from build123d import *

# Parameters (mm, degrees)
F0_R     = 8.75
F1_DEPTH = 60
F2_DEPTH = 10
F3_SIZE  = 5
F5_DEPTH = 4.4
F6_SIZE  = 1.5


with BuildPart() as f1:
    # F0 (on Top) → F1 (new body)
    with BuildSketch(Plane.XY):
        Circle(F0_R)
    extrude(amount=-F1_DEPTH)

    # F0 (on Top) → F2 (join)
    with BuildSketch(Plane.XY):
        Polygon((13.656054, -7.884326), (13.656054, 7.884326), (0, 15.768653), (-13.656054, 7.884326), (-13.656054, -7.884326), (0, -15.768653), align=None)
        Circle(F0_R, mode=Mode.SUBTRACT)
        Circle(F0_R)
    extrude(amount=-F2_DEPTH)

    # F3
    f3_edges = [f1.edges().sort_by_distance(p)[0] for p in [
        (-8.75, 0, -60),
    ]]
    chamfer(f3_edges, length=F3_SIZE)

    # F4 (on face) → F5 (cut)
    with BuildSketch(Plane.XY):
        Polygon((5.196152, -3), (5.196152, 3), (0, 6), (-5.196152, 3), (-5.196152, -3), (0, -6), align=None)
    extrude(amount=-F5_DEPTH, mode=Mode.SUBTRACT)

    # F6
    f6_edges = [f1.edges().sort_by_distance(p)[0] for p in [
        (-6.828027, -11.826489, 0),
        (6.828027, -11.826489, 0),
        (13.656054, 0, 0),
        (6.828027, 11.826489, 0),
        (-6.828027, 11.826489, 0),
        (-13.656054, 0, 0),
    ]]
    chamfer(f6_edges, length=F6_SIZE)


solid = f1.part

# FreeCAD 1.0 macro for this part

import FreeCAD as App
import Part
import Sketcher
Q = App.Units.Quantity


def edges_at(feature, points):
    """Names of the edges that pass closest to the given points."""
    edges = feature.Shape.Edges
    near = lambda p: min(range(len(edges)), key=lambda i: edges[i].distToShape(Part.Vertex(*p))[0])
    return sorted({f"Edge{near(p) + 1}" for p in points})


def add_polygon(sketch, points):
    """Adds a closed chain of lines whose ends are joined by coincident constraints."""
    first, n = sketch.GeometryCount, len(points)
    for a, b in zip(points, points[1:] + points[:1]):
        sketch.addGeometry(Part.LineSegment(App.Vector(*a, 0), App.Vector(*b, 0)), False)
    for i in range(n):
        sketch.addConstraint(Sketcher.Constraint("Coincident", first + i, 2, first + (i + 1) % n, 1))

doc = App.newDocument("Part")
params = doc.addObject("Spreadsheet::Sheet", "Params")
for row, (alias, value) in enumerate([
    ("sketch1_diameter", "17.5 mm"),
    ("pad1_length", "60 mm"),
    ("pad2_length", "10 mm"),
    ("chamfer_size", "5 mm"),
    ("sketch3_height", "6 mm"),
    ("sketch3_length", "6 mm"),
    ("pocket1_length", "4.4 mm"),
    ("chamfer2_size", "1.5 mm"),
], start=1):
    params.set(f"A{row}", alias)
    params.set(f"B{row}", "=" + value)
    params.setAlias(f"B{row}", alias)

body = doc.addObject("PartDesign::Body", "Body")

# Sketch on XY plane
sketch1 = body.newObject("Sketcher::SketchObject", "Sketch")
sketch1.AttachmentSupport = (doc.getObject("XY_Plane"), [""])
sketch1.MapMode = "FlatFace"
sketch1.addGeometry(Part.Circle(App.Vector(0, 0, 0), App.Vector(0, 0, 1), 8.75), False)
sketch1.addConstraint([
    Sketcher.Constraint("Coincident", 0, 3, -1, 1),
    Sketcher.Constraint("Diameter", 0, 17.5),
])
sketch1.setExpression("Constraints[1]", "Params.sketch1_diameter")
pad1 = body.newObject("PartDesign::Pad", "Pad")
pad1.Profile = sketch1
pad1.setExpression("Length", "Params.pad1_length")
pad1.Reversed = True

# Sketch on XY plane
sketch2 = body.newObject("Sketcher::SketchObject", "Sketch001")
sketch2.AttachmentSupport = (doc.getObject("XY_Plane"), [""])
sketch2.MapMode = "FlatFace"
add_polygon(sketch2, [(13.656054, -7.884326), (13.656054, 7.884326), (0, 15.768653), (-13.656054, 7.884326), (-13.656054, -7.884326), (0, -15.768653)])  # lines 0-5
sketch2.addConstraint([
    Sketcher.Constraint("Vertical", 0),
    Sketcher.Constraint("Vertical", 3),
    Sketcher.Constraint("Symmetric", 0, 2, 3, 2, -1, 1),
    Sketcher.Constraint("Symmetric", 1, 2, 4, 2, -1, 1),
    Sketcher.Constraint("PointOnObject", 1, 2, -2),
    Sketcher.Constraint("Parallel", 2, 5),
    Sketcher.Constraint("Horizontal", 0, 2, 2, 2),
    Sketcher.Constraint("Angle", 1, Q("149.999998 deg")),
    Sketcher.Constraint("DistanceY", 0, 1, 0, 2, 15.768652),
    Sketcher.Constraint("DistanceY", 3, 2, 1, 2, 23.652979),
])
pad2 = body.newObject("PartDesign::Pad", "Pad001")
pad2.Profile = sketch2
pad2.setExpression("Length", "Params.pad2_length")
pad2.Reversed = True
doc.recompute()

chamfer = body.newObject("PartDesign::Chamfer", "Chamfer")
chamfer.Base = (pad2, edges_at(pad2, [(-8.75, 0, -60)]))
chamfer.setExpression("Size", "Params.chamfer_size")

# Sketch on XY plane
sketch3 = body.newObject("Sketcher::SketchObject", "Sketch002")
sketch3.AttachmentSupport = (doc.getObject("XY_Plane"), [""])
sketch3.MapMode = "FlatFace"
add_polygon(sketch3, [(5.196152, -3), (5.196152, 3), (0, 6), (-5.196152, 3), (-5.196152, -3), (0, -6)])  # lines 0-5
sketch3.addConstraint([
    Sketcher.Constraint("Vertical", 0),
    Sketcher.Constraint("Vertical", 3),
    Sketcher.Constraint("Symmetric", 0, 2, 3, 2, -1, 1),
    Sketcher.Constraint("Symmetric", 1, 2, 4, 2, -1, 1),
    Sketcher.Constraint("PointOnObject", 1, 2, -2),
    Sketcher.Constraint("Parallel", 2, 5),
    Sketcher.Constraint("Horizontal", 0, 2, 2, 2),
    Sketcher.Constraint("DistanceY", 0, 1, 0, 2, 6.0),
    Sketcher.Constraint("Angle", 1, Q("149.999998 deg")),
    Sketcher.Constraint("Distance", 1, 6.0),
])
sketch3.setExpression("Constraints[13]", "Params.sketch3_height")
sketch3.setExpression("Constraints[15]", "Params.sketch3_length")
pocket1 = body.newObject("PartDesign::Pocket", "Pocket")
pocket1.Profile = sketch3
pocket1.setExpression("Length", "Params.pocket1_length")
doc.recompute()

chamfer2 = body.newObject("PartDesign::Chamfer", "Chamfer001")
chamfer2.Base = (pocket1, edges_at(pocket1, [
    (-6.828, -11.826, 0),
    (6.828, -11.826, 0),
    (13.656, 0, 0),
    (6.828, 11.826, 0),
    (-6.828, 11.826, 0),
    (-13.656, 0, 0),
]))
chamfer2.setExpression("Size", "Params.chamfer2_size")

doc.recompute()
